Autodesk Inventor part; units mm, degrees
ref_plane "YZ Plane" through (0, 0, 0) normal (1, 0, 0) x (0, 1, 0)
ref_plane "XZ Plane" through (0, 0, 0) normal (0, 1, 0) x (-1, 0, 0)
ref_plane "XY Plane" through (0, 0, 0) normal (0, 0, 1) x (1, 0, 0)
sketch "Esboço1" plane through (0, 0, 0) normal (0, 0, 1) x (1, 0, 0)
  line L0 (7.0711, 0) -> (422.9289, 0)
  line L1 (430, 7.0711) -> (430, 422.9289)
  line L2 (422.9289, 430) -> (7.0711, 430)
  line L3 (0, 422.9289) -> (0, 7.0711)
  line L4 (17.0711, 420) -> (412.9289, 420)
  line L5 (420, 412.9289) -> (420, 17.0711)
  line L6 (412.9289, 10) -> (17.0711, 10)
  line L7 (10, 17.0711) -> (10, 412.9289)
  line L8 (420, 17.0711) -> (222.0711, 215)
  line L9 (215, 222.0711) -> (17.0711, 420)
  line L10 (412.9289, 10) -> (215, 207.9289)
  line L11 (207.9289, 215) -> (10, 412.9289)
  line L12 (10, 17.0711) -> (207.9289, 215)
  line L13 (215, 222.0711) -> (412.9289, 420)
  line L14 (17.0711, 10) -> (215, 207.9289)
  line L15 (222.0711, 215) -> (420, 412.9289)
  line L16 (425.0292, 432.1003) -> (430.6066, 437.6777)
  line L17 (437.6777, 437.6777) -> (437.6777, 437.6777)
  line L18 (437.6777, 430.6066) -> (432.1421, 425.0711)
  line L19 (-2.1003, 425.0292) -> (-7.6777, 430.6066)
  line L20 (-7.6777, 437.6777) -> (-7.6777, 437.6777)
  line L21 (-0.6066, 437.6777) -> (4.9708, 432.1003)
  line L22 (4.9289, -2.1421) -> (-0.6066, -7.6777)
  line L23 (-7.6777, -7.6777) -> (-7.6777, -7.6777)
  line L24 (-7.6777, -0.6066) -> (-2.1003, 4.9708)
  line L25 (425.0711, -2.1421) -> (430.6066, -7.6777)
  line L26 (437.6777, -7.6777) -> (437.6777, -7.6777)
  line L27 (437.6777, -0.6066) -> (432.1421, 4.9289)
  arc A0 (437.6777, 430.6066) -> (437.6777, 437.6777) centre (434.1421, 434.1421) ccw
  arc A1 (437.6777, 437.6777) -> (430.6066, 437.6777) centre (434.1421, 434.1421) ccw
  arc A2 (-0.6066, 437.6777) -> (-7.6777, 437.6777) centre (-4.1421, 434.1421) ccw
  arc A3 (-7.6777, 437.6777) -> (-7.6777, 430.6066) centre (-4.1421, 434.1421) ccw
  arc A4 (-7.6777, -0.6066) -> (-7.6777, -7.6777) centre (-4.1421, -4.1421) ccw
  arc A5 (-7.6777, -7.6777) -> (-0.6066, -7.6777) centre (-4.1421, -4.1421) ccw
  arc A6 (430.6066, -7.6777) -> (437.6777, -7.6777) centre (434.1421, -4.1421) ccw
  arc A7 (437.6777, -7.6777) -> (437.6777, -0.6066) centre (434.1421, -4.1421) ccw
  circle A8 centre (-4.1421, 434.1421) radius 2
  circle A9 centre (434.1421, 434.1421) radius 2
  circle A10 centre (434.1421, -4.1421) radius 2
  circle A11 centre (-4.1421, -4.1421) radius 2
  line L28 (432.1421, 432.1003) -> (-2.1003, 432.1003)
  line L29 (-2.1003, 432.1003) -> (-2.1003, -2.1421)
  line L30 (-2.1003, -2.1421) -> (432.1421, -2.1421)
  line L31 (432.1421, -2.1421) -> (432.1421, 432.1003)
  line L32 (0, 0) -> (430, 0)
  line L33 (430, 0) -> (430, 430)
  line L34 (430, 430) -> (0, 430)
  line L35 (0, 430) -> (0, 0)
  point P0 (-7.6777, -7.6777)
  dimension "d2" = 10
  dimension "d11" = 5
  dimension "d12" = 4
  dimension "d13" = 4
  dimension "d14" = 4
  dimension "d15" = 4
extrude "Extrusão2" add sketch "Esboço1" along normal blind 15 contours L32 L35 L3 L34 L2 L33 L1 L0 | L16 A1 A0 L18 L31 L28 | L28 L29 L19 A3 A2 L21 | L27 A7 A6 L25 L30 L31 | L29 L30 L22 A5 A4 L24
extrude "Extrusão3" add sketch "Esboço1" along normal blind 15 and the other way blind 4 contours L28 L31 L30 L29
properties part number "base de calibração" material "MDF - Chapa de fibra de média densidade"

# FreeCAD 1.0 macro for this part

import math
import FreeCAD as App
import Part
import Sketcher

V = App.Vector


def add_polygon(sketch, points):
    """Adds a closed chain of lines whose ends are joined by coincident constraints."""
    first, n = sketch.GeometryCount, len(points)
    for a, b in zip(points, points[1:] + points[:1]):
        sketch.addGeometry(Part.LineSegment(App.Vector(*a, 0), App.Vector(*b, 0)), False)
    for i in range(n):
        sketch.addConstraint(Sketcher.Constraint("Coincident", first + i, 2, first + (i + 1) % n, 1))

doc = App.newDocument("Part")
body = doc.addObject("PartDesign::Body", "Body")
body.AllowCompound = True

sketch1 = body.newObject("Sketcher::SketchObject", "Sketch")
sketch1.AttachmentSupport = (doc.getObject("XY_Plane"), [""])
sketch1.MapMode = "FlatFace"
add_polygon(sketch1, [(0, 0), (430, 0), (430, 430), (0, 430)])
add_polygon(sketch1, [(215, 207.9), (412.9, 10), (17.1, 10)])
add_polygon(sketch1, [(207.9, 215), (10, 17.1), (10, 412.9)])
add_polygon(sketch1, [(215, 222.1), (17.1, 420), (412.9, 420)])
add_polygon(sketch1, [(222.1, 215), (420, 412.9), (420, 17.1)])
sketch1.addGeometry(Part.LineSegment(V(430.6, 437.7, 0), V(425, 432.1, 0)), False)
sketch1.addGeometry(Part.LineSegment(V(425, 432.1, 0), V(432.1, 432.1, 0)), False)
sketch1.addGeometry(Part.LineSegment(V(432.1, 432.1, 0), V(432.1, 425.1, 0)), False)
sketch1.addGeometry(Part.LineSegment(V(432.1, 425.1, 0), V(437.7, 430.6, 0)), False)
sketch1.addGeometry(Part.ArcOfCircle(Part.Circle(V(434.1, 434.1, 0), V(0, 0, 1), 5), math.radians(-45), math.radians(45)), False)
sketch1.addGeometry(Part.ArcOfCircle(Part.Circle(V(434.1, 434.1, 0), V(0, 0, 1), 5), math.radians(45), math.radians(135)), False)
sketch1.addGeometry(Part.Circle(V(434.1, 434.1, 0), V(0, 0, 1), 2), False)
sketch1.addGeometry(Part.LineSegment(V(-2.1, 432.1, 0), V(5, 432.1, 0)), False)
sketch1.addGeometry(Part.LineSegment(V(5, 432.1, 0), V(-0.6, 437.7, 0)), False)
sketch1.addGeometry(Part.ArcOfCircle(Part.Circle(V(-4.1, 434.1, 0), V(0, 0, 1), 5), math.radians(45), math.radians(135)), False)
sketch1.addGeometry(Part.ArcOfCircle(Part.Circle(V(-4.1, 434.1, 0), V(0, 0, 1), 5), math.radians(135), math.radians(225)), False)
sketch1.addGeometry(Part.LineSegment(V(-7.7, 430.6, 0), V(-2.1, 425, 0)), False)
sketch1.addGeometry(Part.LineSegment(V(-2.1, 425, 0), V(-2.1, 432.1, 0)), False)
sketch1.addGeometry(Part.Circle(V(-4.1, 434.1, 0), V(0, 0, 1), 2), False)
sketch1.addGeometry(Part.LineSegment(V(437.7, -0.6, 0), V(432.1, 4.9, 0)), False)
sketch1.addGeometry(Part.LineSegment(V(432.1, 4.9, 0), V(432.1, -2.1, 0)), False)
sketch1.addGeometry(Part.LineSegment(V(432.1, -2.1, 0), V(425.1, -2.1, 0)), False)
sketch1.addGeometry(Part.LineSegment(V(425.1, -2.1, 0), V(430.6, -7.7, 0)), False)
sketch1.addGeometry(Part.ArcOfCircle(Part.Circle(V(434.1, -4.1, 0), V(0, 0, 1), 5), math.radians(-135), math.radians(-45)), False)
sketch1.addGeometry(Part.ArcOfCircle(Part.Circle(V(434.1, -4.1, 0), V(0, 0, 1), 5), math.radians(-45), math.radians(45)), False)
sketch1.addGeometry(Part.Circle(V(434.1, -4.1, 0), V(0, 0, 1), 2), False)
sketch1.addGeometry(Part.LineSegment(V(-2.1, -2.1, 0), V(-2.1, 5, 0)), False)
sketch1.addGeometry(Part.LineSegment(V(-2.1, 5, 0), V(-7.7, -0.6, 0)), False)
sketch1.addGeometry(Part.ArcOfCircle(Part.Circle(V(-4.1, -4.1, 0), V(0, 0, 1), 5), math.radians(135), math.radians(225)), False)
sketch1.addGeometry(Part.ArcOfCircle(Part.Circle(V(-4.1, -4.1, 0), V(0, 0, 1), 5), math.radians(-135), math.radians(-45)), False)
sketch1.addGeometry(Part.LineSegment(V(-0.6, -7.7, 0), V(4.9, -2.1, 0)), False)
sketch1.addGeometry(Part.LineSegment(V(4.9, -2.1, 0), V(-2.1, -2.1, 0)), False)
sketch1.addGeometry(Part.Circle(V(-4.1, -4.1, 0), V(0, 0, 1), 2), False)
sketch1.addConstraint(Sketcher.Constraint("Coincident", 16, 2, 17, 1))
sketch1.addConstraint(Sketcher.Constraint("Coincident", 17, 2, 18, 1))
sketch1.addConstraint(Sketcher.Constraint("Coincident", 18, 2, 19, 1))
sketch1.addConstraint(Sketcher.Constraint("Tangent", 19, 2, 20, 1))
sketch1.addConstraint(Sketcher.Constraint("Tangent", 20, 2, 21, 1))
sketch1.addConstraint(Sketcher.Constraint("Tangent", 21, 2, 16, 1))
sketch1.addConstraint(Sketcher.Constraint("Coincident", 23, 2, 24, 1))
sketch1.addConstraint(Sketcher.Constraint("Tangent", 24, 2, 25, 1))
sketch1.addConstraint(Sketcher.Constraint("Tangent", 25, 2, 26, 1))
sketch1.addConstraint(Sketcher.Constraint("Tangent", 26, 2, 27, 1))
sketch1.addConstraint(Sketcher.Constraint("Coincident", 27, 2, 28, 1))
sketch1.addConstraint(Sketcher.Constraint("Coincident", 28, 2, 23, 1))
sketch1.addConstraint(Sketcher.Constraint("Coincident", 30, 2, 31, 1))
sketch1.addConstraint(Sketcher.Constraint("Coincident", 31, 2, 32, 1))
sketch1.addConstraint(Sketcher.Constraint("Coincident", 32, 2, 33, 1))
sketch1.addConstraint(Sketcher.Constraint("Tangent", 33, 2, 34, 1))
sketch1.addConstraint(Sketcher.Constraint("Tangent", 34, 2, 35, 1))
sketch1.addConstraint(Sketcher.Constraint("Tangent", 35, 2, 30, 1))
sketch1.addConstraint(Sketcher.Constraint("Coincident", 37, 2, 38, 1))
sketch1.addConstraint(Sketcher.Constraint("Tangent", 38, 2, 39, 1))
sketch1.addConstraint(Sketcher.Constraint("Tangent", 39, 2, 40, 1))
sketch1.addConstraint(Sketcher.Constraint("Tangent", 40, 2, 41, 1))
sketch1.addConstraint(Sketcher.Constraint("Coincident", 41, 2, 42, 1))
sketch1.addConstraint(Sketcher.Constraint("Coincident", 42, 2, 37, 1))
sketch1.addConstraint(Sketcher.Constraint("Horizontal", 0))
sketch1.addConstraint(Sketcher.Constraint("Vertical", 1))
sketch1.addConstraint(Sketcher.Constraint("Horizontal", 2))
sketch1.addConstraint(Sketcher.Constraint("Vertical", 3))
sketch1.addConstraint(Sketcher.Constraint("Horizontal", 5))
sketch1.addConstraint(Sketcher.Constraint("Vertical", 8))
sketch1.addConstraint(Sketcher.Constraint("Horizontal", 11))
sketch1.addConstraint(Sketcher.Constraint("Vertical", 14))
sketch1.addConstraint(Sketcher.Constraint("Horizontal", 17))
sketch1.addConstraint(Sketcher.Constraint("Vertical", 18))
sketch1.addConstraint(Sketcher.Constraint("Horizontal", 23))
sketch1.addConstraint(Sketcher.Constraint("Vertical", 28))
sketch1.addConstraint(Sketcher.Constraint("Vertical", 31))
sketch1.addConstraint(Sketcher.Constraint("Horizontal", 32))
sketch1.addConstraint(Sketcher.Constraint("Vertical", 37))
sketch1.addConstraint(Sketcher.Constraint("Horizontal", 42))
sketch1.addConstraint(Sketcher.Constraint("Coincident", 3, 2, -1, 1))
sketch1.addConstraint(Sketcher.Constraint("Coincident", 22, 3, 20, 3))
sketch1.addConstraint(Sketcher.Constraint("Coincident", 29, 3, 25, 3))
sketch1.addConstraint(Sketcher.Constraint("Coincident", 36, 3, 34, 3))
sketch1.addConstraint(Sketcher.Constraint("Coincident", 43, 3, 39, 3))
sketch1.addConstraint(Sketcher.Constraint("Equal", 20, 21))
sketch1.addConstraint(Sketcher.Constraint("Equal", 21, 25))
sketch1.addConstraint(Sketcher.Constraint("Equal", 25, 26))
sketch1.addConstraint(Sketcher.Constraint("Equal", 22, 29))
sketch1.addConstraint(Sketcher.Constraint("Equal", 26, 34))
sketch1.addConstraint(Sketcher.Constraint("Equal", 34, 35))
sketch1.addConstraint(Sketcher.Constraint("Equal", 29, 36))
sketch1.addConstraint(Sketcher.Constraint("Equal", 35, 39))
sketch1.addConstraint(Sketcher.Constraint("Equal", 39, 40))
sketch1.addConstraint(Sketcher.Constraint("Equal", 36, 43))
sketch1.addConstraint(Sketcher.Constraint("Perpendicular", 4, 6))
sketch1.addConstraint(Sketcher.Constraint("Parallel", 6, 7))
sketch1.addConstraint(Sketcher.Constraint("Perpendicular", 7, 9))
sketch1.addConstraint(Sketcher.Constraint("Parallel", 9, 10))
sketch1.addConstraint(Sketcher.Constraint("Perpendicular", 10, 12))
sketch1.addConstraint(Sketcher.Constraint("Parallel", 12, 13))
sketch1.addConstraint(Sketcher.Constraint("Perpendicular", 13, 15))
sketch1.addConstraint(Sketcher.Constraint("Perpendicular", 15, 16))
sketch1.addConstraint(Sketcher.Constraint("Parallel", 16, 19))
sketch1.addConstraint(Sketcher.Constraint("Perpendicular", 19, 24))
sketch1.addConstraint(Sketcher.Constraint("Parallel", 24, 27))
sketch1.addConstraint(Sketcher.Constraint("Parallel", 27, 30))
sketch1.addConstraint(Sketcher.Constraint("Parallel", 30, 33))
sketch1.addConstraint(Sketcher.Constraint("Perpendicular", 33, 38))
sketch1.addConstraint(Sketcher.Constraint("Parallel", 38, 41))
sketch1.addConstraint(Sketcher.Constraint("Horizontal", 22, 3, 25, 3))
sketch1.addConstraint(Sketcher.Constraint("Horizontal", 36, 3, 39, 3))
sketch1.addConstraint(Sketcher.Constraint("Horizontal", 8, 2, 13, 2))
sketch1.addConstraint(Sketcher.Constraint("Horizontal", 7, 2, 14, 2))
sketch1.addConstraint(Sketcher.Constraint("Horizontal", 9, 2, 15, 2))
sketch1.addConstraint(Sketcher.Constraint("Horizontal", 20, 2, 21, 2))
sketch1.addConstraint(Sketcher.Constraint("Horizontal", 17, 2, 23, 2))
sketch1.addConstraint(Sketcher.Constraint("Horizontal", 24, 2, 25, 2))
sketch1.addConstraint(Sketcher.Constraint("Horizontal", 33, 2, 34, 2))
sketch1.addConstraint(Sketcher.Constraint("Horizontal", 34, 2, 39, 2))
sketch1.addConstraint(Sketcher.Constraint("Horizontal", 32, 2, 41, 2))
sketch1.addConstraint(Sketcher.Constraint("Vertical", 22, 3, 34, 3))
sketch1.addConstraint(Sketcher.Constraint("Vertical", 29, 3, 39, 3))
sketch1.addConstraint(Sketcher.Constraint("Vertical", 5, 2, 10, 2))
sketch1.addConstraint(Sketcher.Constraint("Vertical", 4, 2, 11, 2))
sketch1.addConstraint(Sketcher.Constraint("Vertical", 18, 2, 30, 2))
sketch1.addConstraint(Sketcher.Constraint("Vertical", 28, 2, 37, 2))
sketch1.addConstraint(Sketcher.Constraint("Equal", 23, 32))
sketch1.addConstraint(Sketcher.Constraint("Equal", 2, 1))
sketch1.addConstraint(Sketcher.Constraint("Equal", 11, 8))
sketch1.addConstraint(Sketcher.Constraint("Equal", 42, 18))
sketch1.addConstraint(Sketcher.Constraint("Diameter", 22, 4.0))
sketch1.addConstraint(Sketcher.Constraint("Radius", 20, 5.0))
sketch1.addConstraint(Sketcher.Constraint("DistanceY", -1, 1, 4, 2, 10.0))
sketch1.addConstraint(Sketcher.Constraint("DistanceX", -1, 1, 7, 2, 10.0))
sketch1.addConstraint(Sketcher.Constraint("DistanceY", 10, 2, 2, 2, 10.0))
sketch1.addConstraint(Sketcher.Constraint("DistanceX", 13, 2, 1, 2, 10.0))
sketch1.addConstraint(Sketcher.Constraint("DistanceX", 0, 1, 0, 2, 430.0))
sketch1.addConstraint(Sketcher.Constraint("DistanceX", -1, 1, 6, 2, 215.0))
sketch1.addConstraint(Sketcher.Constraint("DistanceY", -1, 1, 9, 2, 215.0))
sketch1.addConstraint(Sketcher.Constraint("DistanceX", 17, 2, 20, 3, 2.0))
sketch1.addConstraint(Sketcher.Constraint("DistanceX", 17, 1, 17, 2, 7.113))
sketch1.addConstraint(Sketcher.Constraint("DistanceX", 5, 2, 5, 1, 395.8578))
sketch1.addConstraint(Sketcher.Constraint("DistanceX", -1, 1, 20, 3, 434.142))
sketch1.addConstraint(Sketcher.Constraint("DistanceY", -1, 1, 20, 3, 434.142))
sketch1.addConstraint(Sketcher.Constraint("DistanceX", 25, 3, -1, 1, 4.142))
sketch1.addConstraint(Sketcher.Constraint("DistanceY", 34, 3, -1, 1, 4.142))
pad1 = body.newObject("PartDesign::Pad", "Pad")
pad1.Profile = sketch1
pad1.Length = 15

sketch2 = body.newObject("Sketcher::SketchObject", "Sketch001")
sketch2.AttachmentSupport = (doc.getObject("XY_Plane"), [""])
sketch2.MapMode = "FlatFace"
add_polygon(sketch2, [(432, 432), (-2, 432), (-2, -2), (432, -2)])
add_polygon(sketch2, [(430, 0), (0, 0), (0, 430), (430, 430)])
sketch2.addConstraint(Sketcher.Constraint("Horizontal", 0))
sketch2.addConstraint(Sketcher.Constraint("Vertical", 1))
sketch2.addConstraint(Sketcher.Constraint("Horizontal", 2))
sketch2.addConstraint(Sketcher.Constraint("Vertical", 3))
sketch2.addConstraint(Sketcher.Constraint("Horizontal", 4))
sketch2.addConstraint(Sketcher.Constraint("Vertical", 5))
sketch2.addConstraint(Sketcher.Constraint("Horizontal", 6))
sketch2.addConstraint(Sketcher.Constraint("Vertical", 7))
sketch2.addConstraint(Sketcher.Constraint("Coincident", 4, 2, -1, 1))
sketch2.addConstraint(Sketcher.Constraint("Equal", 2, 1))
sketch2.addConstraint(Sketcher.Constraint("Equal", 6, 5))
sketch2.addConstraint(Sketcher.Constraint("DistanceX", 4, 2, 4, 1, 430.0))
sketch2.addConstraint(Sketcher.Constraint("DistanceX", 0, 2, 0, 1, 434.2424))
sketch2.addConstraint(Sketcher.Constraint("DistanceY", 1, 2, -1, 1, 2.142))
sketch2.addConstraint(Sketcher.Constraint("DistanceX", -1, 1, 2, 2, 432.142))
pad2 = body.newObject("PartDesign::Pad", "Pad001")
pad2.Profile = sketch2
pad2.Type = "TwoLengths"
pad2.Length = 15
pad2.Length2 = 4

doc.recompute()
